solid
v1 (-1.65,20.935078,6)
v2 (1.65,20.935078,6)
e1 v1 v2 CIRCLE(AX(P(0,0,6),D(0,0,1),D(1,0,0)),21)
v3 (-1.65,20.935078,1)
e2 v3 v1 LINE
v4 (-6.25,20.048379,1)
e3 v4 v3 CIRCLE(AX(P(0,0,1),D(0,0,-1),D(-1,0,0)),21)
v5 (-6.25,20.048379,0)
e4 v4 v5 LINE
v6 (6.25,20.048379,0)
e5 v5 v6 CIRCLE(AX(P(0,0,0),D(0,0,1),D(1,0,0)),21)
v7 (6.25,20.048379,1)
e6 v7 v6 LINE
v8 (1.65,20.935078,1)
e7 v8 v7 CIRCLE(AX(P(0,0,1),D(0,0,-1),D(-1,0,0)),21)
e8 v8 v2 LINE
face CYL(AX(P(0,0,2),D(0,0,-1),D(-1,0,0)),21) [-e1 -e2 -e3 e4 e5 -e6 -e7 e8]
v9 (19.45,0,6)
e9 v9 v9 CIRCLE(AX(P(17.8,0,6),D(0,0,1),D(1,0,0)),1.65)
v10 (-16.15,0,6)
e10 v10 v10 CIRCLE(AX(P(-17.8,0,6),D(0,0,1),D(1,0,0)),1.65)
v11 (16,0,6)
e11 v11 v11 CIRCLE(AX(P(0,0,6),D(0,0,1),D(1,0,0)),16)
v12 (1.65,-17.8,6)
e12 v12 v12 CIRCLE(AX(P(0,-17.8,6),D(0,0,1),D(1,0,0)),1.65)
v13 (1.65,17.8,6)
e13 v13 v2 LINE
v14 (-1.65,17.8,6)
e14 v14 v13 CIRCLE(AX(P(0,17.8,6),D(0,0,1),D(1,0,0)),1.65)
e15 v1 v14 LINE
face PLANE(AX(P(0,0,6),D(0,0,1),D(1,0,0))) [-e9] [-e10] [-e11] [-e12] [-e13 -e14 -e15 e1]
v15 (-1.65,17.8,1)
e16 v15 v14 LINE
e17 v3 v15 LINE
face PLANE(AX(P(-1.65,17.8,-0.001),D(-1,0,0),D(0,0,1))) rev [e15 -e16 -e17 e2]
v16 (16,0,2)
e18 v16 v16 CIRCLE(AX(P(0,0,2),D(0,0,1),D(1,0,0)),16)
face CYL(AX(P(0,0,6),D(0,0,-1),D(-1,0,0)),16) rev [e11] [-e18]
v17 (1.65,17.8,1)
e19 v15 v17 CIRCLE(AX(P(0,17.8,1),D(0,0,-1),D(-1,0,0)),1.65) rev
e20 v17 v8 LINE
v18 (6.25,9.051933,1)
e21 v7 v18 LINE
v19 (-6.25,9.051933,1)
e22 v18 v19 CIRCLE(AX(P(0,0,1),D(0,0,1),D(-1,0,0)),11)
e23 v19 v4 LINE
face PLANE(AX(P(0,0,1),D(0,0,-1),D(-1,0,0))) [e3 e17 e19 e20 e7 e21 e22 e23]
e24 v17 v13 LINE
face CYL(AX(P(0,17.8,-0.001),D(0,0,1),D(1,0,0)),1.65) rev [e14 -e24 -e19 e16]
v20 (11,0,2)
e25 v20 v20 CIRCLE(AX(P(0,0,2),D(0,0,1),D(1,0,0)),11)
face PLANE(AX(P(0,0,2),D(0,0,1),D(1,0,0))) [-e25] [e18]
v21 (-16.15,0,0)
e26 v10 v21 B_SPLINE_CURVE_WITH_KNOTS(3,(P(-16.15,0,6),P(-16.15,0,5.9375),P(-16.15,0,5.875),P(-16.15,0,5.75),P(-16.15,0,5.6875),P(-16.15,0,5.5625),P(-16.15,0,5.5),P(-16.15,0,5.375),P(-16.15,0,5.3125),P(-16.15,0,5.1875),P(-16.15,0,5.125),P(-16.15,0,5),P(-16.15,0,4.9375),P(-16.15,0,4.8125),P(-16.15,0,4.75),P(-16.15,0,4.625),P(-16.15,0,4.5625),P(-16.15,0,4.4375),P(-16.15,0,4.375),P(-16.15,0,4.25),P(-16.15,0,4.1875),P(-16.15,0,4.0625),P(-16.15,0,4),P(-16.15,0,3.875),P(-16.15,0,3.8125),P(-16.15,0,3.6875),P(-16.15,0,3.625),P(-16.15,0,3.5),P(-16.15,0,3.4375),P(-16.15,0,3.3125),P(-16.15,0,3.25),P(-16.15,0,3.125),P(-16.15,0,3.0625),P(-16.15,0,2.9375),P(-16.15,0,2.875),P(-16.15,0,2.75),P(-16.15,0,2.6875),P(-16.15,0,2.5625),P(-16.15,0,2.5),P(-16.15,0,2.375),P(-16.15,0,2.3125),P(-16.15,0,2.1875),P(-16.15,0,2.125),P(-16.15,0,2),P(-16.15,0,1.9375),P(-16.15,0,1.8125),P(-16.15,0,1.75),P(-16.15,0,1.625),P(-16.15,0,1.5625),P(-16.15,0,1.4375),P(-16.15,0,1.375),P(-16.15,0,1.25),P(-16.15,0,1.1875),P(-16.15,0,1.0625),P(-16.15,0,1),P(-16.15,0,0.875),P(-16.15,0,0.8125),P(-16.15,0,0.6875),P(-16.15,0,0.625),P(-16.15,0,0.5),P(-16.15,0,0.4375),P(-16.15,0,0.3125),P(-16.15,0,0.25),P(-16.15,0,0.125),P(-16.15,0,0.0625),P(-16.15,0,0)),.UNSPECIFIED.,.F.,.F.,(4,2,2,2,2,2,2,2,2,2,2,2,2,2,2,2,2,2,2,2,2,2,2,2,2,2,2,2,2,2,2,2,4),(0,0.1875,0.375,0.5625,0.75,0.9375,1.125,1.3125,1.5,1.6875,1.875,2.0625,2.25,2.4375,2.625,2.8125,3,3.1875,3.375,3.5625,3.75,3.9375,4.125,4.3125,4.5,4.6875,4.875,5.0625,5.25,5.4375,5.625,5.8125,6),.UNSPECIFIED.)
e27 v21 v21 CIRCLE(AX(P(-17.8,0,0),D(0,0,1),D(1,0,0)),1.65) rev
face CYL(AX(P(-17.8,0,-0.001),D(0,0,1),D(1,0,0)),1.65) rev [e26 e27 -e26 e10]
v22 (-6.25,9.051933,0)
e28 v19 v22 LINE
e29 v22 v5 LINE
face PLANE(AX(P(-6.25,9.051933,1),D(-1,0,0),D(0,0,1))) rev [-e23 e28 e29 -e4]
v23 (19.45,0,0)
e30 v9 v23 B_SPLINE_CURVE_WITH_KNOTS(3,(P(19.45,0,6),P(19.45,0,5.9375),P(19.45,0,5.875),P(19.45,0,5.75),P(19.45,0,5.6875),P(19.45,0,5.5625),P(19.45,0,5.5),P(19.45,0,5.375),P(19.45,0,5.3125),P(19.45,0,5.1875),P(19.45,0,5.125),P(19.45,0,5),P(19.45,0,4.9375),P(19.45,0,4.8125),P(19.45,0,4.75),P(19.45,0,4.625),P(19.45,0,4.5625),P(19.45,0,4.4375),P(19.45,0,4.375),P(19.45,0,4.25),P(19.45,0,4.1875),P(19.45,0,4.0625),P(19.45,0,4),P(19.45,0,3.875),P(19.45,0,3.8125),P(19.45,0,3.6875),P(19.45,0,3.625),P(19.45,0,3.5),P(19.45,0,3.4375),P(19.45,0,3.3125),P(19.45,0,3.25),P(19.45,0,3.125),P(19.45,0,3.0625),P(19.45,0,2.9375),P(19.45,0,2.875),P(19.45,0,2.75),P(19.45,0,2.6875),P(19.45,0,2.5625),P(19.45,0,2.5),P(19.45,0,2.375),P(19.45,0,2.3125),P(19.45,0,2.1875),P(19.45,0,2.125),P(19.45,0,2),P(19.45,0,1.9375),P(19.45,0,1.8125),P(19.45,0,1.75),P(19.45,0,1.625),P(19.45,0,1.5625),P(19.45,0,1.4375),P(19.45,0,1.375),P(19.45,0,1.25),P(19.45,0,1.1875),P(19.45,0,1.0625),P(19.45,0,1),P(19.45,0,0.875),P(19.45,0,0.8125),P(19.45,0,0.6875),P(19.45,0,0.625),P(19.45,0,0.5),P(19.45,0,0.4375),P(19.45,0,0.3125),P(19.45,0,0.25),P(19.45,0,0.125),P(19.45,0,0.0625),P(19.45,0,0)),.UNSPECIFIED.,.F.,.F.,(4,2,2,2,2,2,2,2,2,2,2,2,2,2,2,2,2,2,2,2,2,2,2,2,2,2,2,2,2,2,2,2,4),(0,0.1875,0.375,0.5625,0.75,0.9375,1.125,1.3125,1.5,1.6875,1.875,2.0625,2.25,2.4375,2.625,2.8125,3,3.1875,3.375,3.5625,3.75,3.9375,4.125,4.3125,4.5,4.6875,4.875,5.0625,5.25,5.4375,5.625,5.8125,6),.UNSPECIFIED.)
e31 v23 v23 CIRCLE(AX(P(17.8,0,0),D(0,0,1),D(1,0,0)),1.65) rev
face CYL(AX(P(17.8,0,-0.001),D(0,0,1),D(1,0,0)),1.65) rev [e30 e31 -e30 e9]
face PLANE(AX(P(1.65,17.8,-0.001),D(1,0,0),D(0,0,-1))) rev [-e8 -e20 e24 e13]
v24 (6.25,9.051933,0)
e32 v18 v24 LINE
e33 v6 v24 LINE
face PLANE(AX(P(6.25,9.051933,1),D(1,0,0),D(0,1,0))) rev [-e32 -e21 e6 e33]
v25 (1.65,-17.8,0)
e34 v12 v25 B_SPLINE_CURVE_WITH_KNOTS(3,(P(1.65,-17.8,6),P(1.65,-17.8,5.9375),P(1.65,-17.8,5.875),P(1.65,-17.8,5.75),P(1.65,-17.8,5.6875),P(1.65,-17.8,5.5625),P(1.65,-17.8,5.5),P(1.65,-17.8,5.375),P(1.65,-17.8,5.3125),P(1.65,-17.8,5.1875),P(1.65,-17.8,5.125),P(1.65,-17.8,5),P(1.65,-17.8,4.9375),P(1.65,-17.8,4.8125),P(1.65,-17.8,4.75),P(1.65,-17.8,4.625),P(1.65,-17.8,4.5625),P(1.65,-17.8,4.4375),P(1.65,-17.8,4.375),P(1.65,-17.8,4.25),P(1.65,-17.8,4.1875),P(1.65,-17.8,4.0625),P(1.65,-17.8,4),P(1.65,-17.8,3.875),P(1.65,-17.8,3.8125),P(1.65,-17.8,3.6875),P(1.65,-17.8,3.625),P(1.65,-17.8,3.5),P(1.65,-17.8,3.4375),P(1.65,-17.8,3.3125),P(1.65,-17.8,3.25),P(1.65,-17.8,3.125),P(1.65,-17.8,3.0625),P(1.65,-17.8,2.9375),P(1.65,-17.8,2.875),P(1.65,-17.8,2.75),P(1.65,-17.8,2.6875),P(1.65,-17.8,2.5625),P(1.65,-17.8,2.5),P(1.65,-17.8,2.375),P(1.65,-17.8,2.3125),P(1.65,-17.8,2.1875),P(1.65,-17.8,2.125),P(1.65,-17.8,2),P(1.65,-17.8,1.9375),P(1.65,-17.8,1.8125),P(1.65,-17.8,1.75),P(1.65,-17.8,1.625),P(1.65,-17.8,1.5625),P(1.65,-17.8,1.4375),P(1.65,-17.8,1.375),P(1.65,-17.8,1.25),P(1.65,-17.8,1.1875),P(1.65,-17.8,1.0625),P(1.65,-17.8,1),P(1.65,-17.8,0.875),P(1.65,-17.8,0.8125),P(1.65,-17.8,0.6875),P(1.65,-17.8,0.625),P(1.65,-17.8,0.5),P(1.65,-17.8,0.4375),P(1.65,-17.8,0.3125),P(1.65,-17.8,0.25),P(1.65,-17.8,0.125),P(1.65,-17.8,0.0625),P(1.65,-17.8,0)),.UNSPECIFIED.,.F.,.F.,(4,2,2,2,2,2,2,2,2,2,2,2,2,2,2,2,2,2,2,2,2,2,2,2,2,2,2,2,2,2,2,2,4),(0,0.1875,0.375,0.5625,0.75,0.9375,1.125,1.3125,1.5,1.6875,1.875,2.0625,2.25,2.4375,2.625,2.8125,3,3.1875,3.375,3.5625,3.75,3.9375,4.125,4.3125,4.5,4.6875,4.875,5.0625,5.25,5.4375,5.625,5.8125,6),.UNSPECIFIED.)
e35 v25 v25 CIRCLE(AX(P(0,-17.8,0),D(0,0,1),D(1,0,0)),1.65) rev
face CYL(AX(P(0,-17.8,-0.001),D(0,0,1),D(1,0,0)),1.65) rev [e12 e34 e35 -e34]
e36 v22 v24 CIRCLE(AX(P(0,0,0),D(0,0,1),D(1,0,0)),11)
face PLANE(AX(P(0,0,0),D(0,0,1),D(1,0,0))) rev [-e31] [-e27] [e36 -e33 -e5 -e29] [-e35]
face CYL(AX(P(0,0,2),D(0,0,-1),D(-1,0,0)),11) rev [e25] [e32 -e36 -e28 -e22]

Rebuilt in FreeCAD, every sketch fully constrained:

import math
import FreeCAD as App
import Part
import Sketcher
from FreeCAD import Vector

doc = App.newDocument("Part")
body = doc.addObject("PartDesign::Body", "Body")

sketch1 = body.newObject("Sketcher::SketchObject", "Sketch")
sketch1.AttachmentSupport = (doc.getObject("XY_Plane"), [""])
sketch1.MapMode = "FlatFace"
sketch1.addGeometry([
    Part.Circle(Vector(0, 0, 0), Vector(0, 0, 1), 21),
    Part.Circle(Vector(0, 0, 0), Vector(0, 0, 1), 11),
], False)
sketch1.addConstraint([
    Sketcher.Constraint("Coincident", 0, 3, -1, 1),
    Sketcher.Constraint("Coincident", 1, 3, -1, 1),
    Sketcher.Constraint("Diameter", 0, 42.0),
    Sketcher.Constraint("Diameter", 1, 22.0),
])
pad1 = body.newObject("PartDesign::Pad", "Pad")
pad1.Profile = sketch1
pad1.Length = 2

sketch2 = body.newObject("Sketcher::SketchObject", "Sketch001")
sketch2.AttachmentSupport = (doc.getObject("XY_Plane"), [""])
sketch2.MapMode = "FlatFace"
sketch2.AttachmentOffset = App.Placement(Vector(0, 0, 2), App.Rotation())
sketch2.addGeometry([
    Part.Circle(Vector(0, 0, 0), Vector(0, 0, 1), 21),
    Part.Circle(Vector(0, 0, 0), Vector(0, 0, 1), 16),
], False)
sketch2.addConstraint([
    Sketcher.Constraint("Coincident", 0, 3, -1, 1),
    Sketcher.Constraint("Coincident", 1, 3, -1, 1),
    Sketcher.Constraint("Diameter", 0, 42.0),
    Sketcher.Constraint("Diameter", 1, 32.0),
])
pad2 = body.newObject("PartDesign::Pad", "Pad001")
pad2.Profile = sketch2
pad2.Length = 4

sketch3 = body.newObject("Sketcher::SketchObject", "Sketch002")
sketch3.AttachmentSupport = (doc.getObject("XY_Plane"), [""])
sketch3.MapMode = "FlatFace"
sketch3.AttachmentOffset = App.Placement(Vector(0, 0, 6), App.Rotation())
sketch3.addGeometry(Part.Circle(Vector(17.8, 0, 0), Vector(0, 0, 1), 1.6), False)
sketch3.addConstraint([
    Sketcher.Constraint("PointOnObject", 0, 3, -1),
    Sketcher.Constraint("Diameter", 0, 3.3),
    Sketcher.Constraint("DistanceX", -1, 1, 0, 3, 17.8),
])
pocket1 = body.newObject("PartDesign::Pocket", "Pocket")
pocket1.Profile = sketch3
pocket1.Type = "UpToFirst"

sketch4 = body.newObject("Sketcher::SketchObject", "Sketch003")
sketch4.AttachmentSupport = (doc.getObject("XY_Plane"), [""])
sketch4.MapMode = "FlatFace"
sketch4.AttachmentOffset = App.Placement(Vector(0, 0, 6), App.Rotation())
sketch4.addGeometry(Part.Circle(Vector(0, -17.8, 0), Vector(0, 0, 1), 1.6), False)
sketch4.addConstraint([
    Sketcher.Constraint("PointOnObject", 0, 3, -2),
    Sketcher.Constraint("Diameter", 0, 3.3),
    Sketcher.Constraint("DistanceY", 0, 3, -1, 1, 17.8),
])
pocket2 = body.newObject("PartDesign::Pocket", "Pocket001")
pocket2.Profile = sketch4
pocket2.Type = "UpToFirst"

sketch5 = body.newObject("Sketcher::SketchObject", "Sketch004")
sketch5.AttachmentSupport = (doc.getObject("XY_Plane"), [""])
sketch5.MapMode = "FlatFace"
sketch5.AttachmentOffset = App.Placement(Vector(0, 0, 6), App.Rotation())
sketch5.addGeometry(Part.Circle(Vector(-17.8, 0, 0), Vector(0, 0, 1), 1.6), False)
sketch5.addConstraint([
    Sketcher.Constraint("PointOnObject", 0, 3, -1),
    Sketcher.Constraint("Diameter", 0, 3.3),
    Sketcher.Constraint("DistanceX", 0, 3, -1, 1, 17.8),
])
pocket3 = body.newObject("PartDesign::Pocket", "Pocket002")
pocket3.Profile = sketch5
pocket3.Type = "UpToFirst"

sketch6 = body.newObject("Sketcher::SketchObject", "Sketch005")
sketch6.AttachmentSupport = (doc.getObject("XY_Plane"), [""])
sketch6.MapMode = "FlatFace"
sketch6.AttachmentOffset = App.Placement(Vector(0, 0, 6), App.Rotation())
sketch6.addGeometry(Part.Circle(Vector(0, 17.8, 0), Vector(0, 0, 1), 1.6), False)
sketch6.addConstraint([
    Sketcher.Constraint("PointOnObject", 0, 3, -2),
    Sketcher.Constraint("Diameter", 0, 3.3),
    Sketcher.Constraint("DistanceY", -1, 1, 0, 3, 17.8),
])
pocket4 = body.newObject("PartDesign::Pocket", "Pocket003")
pocket4.Profile = sketch6
pocket4.Type = "UpToFirst"

sketch7 = body.newObject("Sketcher::SketchObject", "Sketch006")
sketch7.AttachmentSupport = (doc.getObject("XY_Plane"), [""])
sketch7.MapMode = "FlatFace"
sketch7.AttachmentOffset = App.Placement(Vector(0, 0, 6), App.Rotation())
sketch7.addGeometry([
    Part.LineSegment(Vector(-1.6, 20.9, 0), Vector(-1.6, 17.8, 0)),
    Part.ArcOfCircle(Part.Circle(Vector(0, 17.8, 0), Vector(0, 0, 1), 1.6), math.radians(0), math.radians(180)),
    Part.LineSegment(Vector(1.6, 17.8, 0), Vector(1.6, 20.9, 0)),
    Part.ArcOfCircle(Part.Circle(Vector(0, 0, 0), Vector(0, 0, 1), 21), math.radians(85.49), math.radians(94.51)),
], False)
sketch7.addConstraint([
    Sketcher.Constraint("Tangent", 0, 2, 1, 2),
    Sketcher.Constraint("Tangent", 1, 1, 2, 1),
    Sketcher.Constraint("Coincident", 2, 2, 3, 1),
    Sketcher.Constraint("Coincident", 3, 2, 0, 1),
    Sketcher.Constraint("Vertical", 0),
    Sketcher.Constraint("Vertical", 2),
    Sketcher.Constraint("Coincident", 3, 3, -1, 1),
    Sketcher.Constraint("PointOnObject", 1, 3, -2),
    Sketcher.Constraint("Radius", 3, 21.0),
    Sketcher.Constraint("Radius", 1, 1.65),
    Sketcher.Constraint("DistanceY", -1, 1, 1, 3, 17.8),
])
pocket5 = body.newObject("PartDesign::Pocket", "Pocket004")
pocket5.Profile = sketch7
pocket5.Type = "UpToFirst"

sketch8 = body.newObject("Sketcher::SketchObject", "Sketch007")
sketch8.AttachmentSupport = (doc.getObject("XY_Plane"), [""])
sketch8.MapMode = "FlatFace"
sketch8.addGeometry([
    Part.LineSegment(Vector(6, 20, 0), Vector(6, 9, 0)),
    Part.ArcOfCircle(Part.Circle(Vector(0, 0, 0), Vector(0, 0, 1), 11), math.radians(55), math.radians(125)),
    Part.LineSegment(Vector(-6, 9, 0), Vector(-6, 20, 0)),
    Part.ArcOfCircle(Part.Circle(Vector(0, 0, 0), Vector(0, 0, 1), 21), math.radians(73), math.radians(107)),
], False)
sketch8.addConstraint([
    Sketcher.Constraint("Coincident", 0, 2, 1, 1),
    Sketcher.Constraint("Coincident", 1, 2, 2, 1),
    Sketcher.Constraint("Coincident", 2, 2, 3, 2),
    Sketcher.Constraint("Coincident", 3, 1, 0, 1),
    Sketcher.Constraint("Vertical", 0),
    Sketcher.Constraint("Vertical", 2),
    Sketcher.Constraint("Coincident", 1, 3, -1, 1),
    Sketcher.Constraint("Coincident", 3, 3, -1, 1),
    Sketcher.Constraint("Horizontal", 0, 2, 1, 2),
    Sketcher.Constraint("Radius", 1, 11.0),
    Sketcher.Constraint("Radius", 3, 21.0),
    Sketcher.Constraint("DistanceX", 1, 2, 0, 2, 12.5),
])
pocket6 = body.newObject("PartDesign::Pocket", "Pocket005")
pocket6.Profile = sketch8
pocket6.Length = 1
pocket6.Reversed = True

doc.recompute()
